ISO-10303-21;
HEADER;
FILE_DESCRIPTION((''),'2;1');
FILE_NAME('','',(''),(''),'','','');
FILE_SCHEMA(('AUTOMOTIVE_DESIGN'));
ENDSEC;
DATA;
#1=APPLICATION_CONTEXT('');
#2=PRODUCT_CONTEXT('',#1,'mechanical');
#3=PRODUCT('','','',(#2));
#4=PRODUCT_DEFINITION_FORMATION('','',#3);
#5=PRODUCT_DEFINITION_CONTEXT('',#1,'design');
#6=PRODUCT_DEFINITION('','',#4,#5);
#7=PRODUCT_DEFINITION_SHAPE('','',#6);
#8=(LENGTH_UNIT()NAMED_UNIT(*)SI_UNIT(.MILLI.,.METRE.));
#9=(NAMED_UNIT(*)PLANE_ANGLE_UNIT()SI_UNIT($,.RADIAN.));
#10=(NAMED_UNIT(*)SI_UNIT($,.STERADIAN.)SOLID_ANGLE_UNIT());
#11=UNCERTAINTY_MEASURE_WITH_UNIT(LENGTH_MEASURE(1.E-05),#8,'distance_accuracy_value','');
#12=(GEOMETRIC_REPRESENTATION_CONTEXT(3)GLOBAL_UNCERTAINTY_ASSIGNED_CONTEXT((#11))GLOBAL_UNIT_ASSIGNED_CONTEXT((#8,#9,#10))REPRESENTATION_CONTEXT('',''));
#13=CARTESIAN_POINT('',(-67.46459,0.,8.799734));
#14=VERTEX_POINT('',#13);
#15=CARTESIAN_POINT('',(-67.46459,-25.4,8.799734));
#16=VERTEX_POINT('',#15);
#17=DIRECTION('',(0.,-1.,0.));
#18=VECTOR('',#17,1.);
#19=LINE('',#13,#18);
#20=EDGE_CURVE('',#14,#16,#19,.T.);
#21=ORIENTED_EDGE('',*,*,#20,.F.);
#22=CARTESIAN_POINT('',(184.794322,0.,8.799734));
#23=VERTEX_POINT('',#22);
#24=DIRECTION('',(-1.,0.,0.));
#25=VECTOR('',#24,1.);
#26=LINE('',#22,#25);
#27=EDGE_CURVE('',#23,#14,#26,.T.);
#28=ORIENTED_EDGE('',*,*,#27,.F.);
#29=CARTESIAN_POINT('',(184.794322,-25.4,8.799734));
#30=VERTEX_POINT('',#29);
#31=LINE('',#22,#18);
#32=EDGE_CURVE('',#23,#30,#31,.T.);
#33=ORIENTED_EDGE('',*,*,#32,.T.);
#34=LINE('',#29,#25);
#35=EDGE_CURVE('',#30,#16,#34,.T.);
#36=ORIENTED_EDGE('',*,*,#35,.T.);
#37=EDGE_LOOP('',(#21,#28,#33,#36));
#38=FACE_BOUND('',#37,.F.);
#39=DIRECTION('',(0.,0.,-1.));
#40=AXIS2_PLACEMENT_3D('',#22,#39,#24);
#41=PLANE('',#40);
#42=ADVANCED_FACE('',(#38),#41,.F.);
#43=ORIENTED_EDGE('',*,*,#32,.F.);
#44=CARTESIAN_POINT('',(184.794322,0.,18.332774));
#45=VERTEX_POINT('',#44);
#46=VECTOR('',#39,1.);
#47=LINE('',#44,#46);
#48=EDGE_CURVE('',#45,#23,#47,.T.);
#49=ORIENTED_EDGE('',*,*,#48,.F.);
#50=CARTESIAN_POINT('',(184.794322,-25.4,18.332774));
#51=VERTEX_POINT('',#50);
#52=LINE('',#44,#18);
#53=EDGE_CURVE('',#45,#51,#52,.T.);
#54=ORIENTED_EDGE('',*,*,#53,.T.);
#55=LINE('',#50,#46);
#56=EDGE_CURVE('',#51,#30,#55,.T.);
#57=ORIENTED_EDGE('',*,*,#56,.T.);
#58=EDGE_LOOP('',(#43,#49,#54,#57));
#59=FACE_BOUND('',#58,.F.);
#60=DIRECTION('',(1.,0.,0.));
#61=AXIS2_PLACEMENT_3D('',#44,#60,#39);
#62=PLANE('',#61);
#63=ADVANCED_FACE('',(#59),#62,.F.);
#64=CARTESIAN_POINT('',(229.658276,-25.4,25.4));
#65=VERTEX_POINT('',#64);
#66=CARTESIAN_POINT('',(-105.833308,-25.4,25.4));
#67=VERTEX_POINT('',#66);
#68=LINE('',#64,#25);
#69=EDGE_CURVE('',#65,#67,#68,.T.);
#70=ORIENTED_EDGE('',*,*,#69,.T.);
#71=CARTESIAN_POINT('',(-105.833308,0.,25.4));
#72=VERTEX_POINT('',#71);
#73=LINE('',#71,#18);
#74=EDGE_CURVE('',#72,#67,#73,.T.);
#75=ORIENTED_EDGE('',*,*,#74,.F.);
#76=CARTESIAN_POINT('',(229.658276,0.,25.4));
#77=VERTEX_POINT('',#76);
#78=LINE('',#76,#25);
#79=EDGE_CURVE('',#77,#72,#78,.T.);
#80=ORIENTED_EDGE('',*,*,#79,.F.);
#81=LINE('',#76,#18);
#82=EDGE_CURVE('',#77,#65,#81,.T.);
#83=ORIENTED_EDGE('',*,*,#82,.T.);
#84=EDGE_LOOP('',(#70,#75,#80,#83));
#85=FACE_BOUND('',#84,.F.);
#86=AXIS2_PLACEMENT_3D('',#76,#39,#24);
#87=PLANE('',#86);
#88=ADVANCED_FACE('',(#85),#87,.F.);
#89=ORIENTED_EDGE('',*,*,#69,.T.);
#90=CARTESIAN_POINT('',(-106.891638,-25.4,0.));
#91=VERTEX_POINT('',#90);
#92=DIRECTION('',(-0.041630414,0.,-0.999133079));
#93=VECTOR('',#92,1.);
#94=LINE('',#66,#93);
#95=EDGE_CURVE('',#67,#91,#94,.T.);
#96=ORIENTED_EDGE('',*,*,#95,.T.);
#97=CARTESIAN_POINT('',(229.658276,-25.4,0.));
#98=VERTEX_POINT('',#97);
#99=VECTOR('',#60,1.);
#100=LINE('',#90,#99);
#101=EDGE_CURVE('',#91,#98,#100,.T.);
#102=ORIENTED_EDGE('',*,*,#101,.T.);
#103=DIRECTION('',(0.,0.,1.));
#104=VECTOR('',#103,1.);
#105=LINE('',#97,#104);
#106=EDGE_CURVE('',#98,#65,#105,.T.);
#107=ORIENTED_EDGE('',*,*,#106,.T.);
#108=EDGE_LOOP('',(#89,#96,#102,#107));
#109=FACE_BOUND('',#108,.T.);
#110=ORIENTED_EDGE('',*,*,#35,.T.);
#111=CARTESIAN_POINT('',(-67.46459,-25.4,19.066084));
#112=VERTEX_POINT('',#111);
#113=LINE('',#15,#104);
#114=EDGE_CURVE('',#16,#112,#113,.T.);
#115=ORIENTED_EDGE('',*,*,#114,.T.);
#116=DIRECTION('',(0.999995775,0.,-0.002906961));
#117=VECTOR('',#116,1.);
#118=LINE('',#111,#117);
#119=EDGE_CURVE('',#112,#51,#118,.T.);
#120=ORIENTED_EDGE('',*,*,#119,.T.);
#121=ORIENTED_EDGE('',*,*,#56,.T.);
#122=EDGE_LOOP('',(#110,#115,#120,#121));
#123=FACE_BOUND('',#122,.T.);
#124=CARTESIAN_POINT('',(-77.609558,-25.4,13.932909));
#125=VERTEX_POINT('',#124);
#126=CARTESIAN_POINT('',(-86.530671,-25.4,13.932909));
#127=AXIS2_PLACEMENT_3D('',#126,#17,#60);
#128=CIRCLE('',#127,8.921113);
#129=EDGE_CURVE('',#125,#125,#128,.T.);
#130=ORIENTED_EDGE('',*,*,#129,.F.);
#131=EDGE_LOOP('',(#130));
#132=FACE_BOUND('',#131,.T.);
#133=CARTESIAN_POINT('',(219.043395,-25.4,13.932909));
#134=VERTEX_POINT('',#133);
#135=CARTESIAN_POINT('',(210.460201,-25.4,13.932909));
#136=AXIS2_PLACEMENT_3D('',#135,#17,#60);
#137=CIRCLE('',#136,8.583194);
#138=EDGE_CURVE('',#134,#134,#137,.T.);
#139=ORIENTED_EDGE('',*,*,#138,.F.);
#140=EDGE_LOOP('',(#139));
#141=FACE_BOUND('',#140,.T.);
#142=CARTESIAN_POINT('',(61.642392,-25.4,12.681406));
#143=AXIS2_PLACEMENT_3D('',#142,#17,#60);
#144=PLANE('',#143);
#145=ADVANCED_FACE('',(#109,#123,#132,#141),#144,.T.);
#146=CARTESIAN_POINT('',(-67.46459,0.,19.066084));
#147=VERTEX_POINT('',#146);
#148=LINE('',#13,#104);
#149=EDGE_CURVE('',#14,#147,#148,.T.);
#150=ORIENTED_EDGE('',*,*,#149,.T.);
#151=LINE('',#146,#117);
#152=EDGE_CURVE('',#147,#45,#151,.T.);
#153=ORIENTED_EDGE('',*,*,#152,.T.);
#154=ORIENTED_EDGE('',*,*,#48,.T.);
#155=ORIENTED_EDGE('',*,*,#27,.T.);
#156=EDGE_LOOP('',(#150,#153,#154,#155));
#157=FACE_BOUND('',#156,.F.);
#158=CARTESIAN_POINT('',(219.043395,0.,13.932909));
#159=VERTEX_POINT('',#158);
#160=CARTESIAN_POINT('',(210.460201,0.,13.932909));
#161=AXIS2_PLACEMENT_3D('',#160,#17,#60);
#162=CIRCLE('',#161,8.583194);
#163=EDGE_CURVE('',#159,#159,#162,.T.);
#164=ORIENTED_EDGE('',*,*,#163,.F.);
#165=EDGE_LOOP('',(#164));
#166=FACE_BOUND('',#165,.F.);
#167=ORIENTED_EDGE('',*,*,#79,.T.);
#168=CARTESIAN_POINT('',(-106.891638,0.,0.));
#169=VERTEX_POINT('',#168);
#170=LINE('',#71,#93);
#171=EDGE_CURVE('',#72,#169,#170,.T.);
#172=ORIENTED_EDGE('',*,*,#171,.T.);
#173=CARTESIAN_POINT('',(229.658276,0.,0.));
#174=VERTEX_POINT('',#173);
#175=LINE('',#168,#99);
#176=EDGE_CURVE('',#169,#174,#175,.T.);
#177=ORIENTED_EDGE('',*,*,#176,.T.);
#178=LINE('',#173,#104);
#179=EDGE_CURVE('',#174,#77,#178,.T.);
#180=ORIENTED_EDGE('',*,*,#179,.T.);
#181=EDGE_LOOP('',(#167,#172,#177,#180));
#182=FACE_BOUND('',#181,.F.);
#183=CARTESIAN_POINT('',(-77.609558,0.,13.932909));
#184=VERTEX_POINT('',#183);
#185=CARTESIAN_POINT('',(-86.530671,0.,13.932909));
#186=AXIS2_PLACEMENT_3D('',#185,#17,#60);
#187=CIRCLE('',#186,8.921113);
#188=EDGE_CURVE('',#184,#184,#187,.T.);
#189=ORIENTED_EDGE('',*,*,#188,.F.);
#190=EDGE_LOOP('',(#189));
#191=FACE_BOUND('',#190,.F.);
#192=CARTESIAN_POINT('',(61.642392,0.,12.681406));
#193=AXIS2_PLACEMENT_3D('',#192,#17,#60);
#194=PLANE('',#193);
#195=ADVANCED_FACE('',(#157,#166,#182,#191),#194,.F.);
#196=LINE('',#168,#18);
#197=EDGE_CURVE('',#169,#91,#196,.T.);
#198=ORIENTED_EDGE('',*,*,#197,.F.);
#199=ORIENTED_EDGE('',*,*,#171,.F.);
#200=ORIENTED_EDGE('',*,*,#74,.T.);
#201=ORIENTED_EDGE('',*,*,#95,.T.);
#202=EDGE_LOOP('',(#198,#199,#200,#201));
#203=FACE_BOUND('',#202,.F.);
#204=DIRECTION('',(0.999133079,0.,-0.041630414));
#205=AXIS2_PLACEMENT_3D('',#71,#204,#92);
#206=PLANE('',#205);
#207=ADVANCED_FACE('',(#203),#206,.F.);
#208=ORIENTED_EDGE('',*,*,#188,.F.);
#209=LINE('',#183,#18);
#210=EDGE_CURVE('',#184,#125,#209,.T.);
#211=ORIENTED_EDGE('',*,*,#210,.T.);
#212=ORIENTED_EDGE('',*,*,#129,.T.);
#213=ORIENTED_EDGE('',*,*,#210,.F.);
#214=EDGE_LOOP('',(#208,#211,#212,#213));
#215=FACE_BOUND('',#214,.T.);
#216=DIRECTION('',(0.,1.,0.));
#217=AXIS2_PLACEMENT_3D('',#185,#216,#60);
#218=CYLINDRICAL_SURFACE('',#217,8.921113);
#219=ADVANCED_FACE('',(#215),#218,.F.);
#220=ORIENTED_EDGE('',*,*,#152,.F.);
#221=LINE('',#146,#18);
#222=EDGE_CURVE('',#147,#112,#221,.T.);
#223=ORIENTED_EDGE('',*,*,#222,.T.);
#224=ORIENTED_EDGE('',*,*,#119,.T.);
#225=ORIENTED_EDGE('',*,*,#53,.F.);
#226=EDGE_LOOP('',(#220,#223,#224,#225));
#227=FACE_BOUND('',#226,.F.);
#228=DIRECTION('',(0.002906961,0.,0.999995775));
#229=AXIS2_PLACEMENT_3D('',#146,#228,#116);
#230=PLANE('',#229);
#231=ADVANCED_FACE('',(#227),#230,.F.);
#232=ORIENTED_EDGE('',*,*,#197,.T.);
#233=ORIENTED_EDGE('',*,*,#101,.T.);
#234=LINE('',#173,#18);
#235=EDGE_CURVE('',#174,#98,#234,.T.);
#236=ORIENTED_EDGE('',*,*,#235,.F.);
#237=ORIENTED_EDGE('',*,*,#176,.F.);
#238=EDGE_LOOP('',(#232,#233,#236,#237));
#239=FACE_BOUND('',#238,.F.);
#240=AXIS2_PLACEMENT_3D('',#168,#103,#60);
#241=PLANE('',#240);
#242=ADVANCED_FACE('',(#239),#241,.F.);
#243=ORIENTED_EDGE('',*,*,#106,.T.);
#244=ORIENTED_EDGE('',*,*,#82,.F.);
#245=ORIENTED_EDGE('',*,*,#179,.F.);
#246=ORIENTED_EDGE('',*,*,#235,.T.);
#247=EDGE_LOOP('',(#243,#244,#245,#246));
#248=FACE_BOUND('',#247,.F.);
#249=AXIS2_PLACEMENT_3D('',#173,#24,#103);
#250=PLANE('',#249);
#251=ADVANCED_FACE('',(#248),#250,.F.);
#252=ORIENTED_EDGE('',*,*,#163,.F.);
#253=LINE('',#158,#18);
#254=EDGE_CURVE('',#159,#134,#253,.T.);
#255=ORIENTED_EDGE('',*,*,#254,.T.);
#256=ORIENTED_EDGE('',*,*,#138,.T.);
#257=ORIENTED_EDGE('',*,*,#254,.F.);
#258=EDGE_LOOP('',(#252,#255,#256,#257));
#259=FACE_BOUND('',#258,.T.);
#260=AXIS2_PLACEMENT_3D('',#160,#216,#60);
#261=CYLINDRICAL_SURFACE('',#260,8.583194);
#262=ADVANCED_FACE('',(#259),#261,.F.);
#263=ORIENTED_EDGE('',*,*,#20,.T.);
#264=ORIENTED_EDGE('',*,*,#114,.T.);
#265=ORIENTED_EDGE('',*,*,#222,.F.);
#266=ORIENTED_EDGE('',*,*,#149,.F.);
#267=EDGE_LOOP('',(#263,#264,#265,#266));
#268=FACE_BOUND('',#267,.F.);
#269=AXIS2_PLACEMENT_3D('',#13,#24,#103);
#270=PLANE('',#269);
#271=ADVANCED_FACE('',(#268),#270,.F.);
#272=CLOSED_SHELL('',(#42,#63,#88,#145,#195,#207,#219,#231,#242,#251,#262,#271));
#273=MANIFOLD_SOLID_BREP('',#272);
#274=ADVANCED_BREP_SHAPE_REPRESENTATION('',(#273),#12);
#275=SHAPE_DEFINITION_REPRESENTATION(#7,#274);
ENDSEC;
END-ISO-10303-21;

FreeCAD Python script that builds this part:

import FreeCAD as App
import Part
import Sketcher
Q = App.Units.Quantity


def add_polygon(sketch, points):
    """Adds a closed chain of lines whose ends are joined by coincident constraints."""
    first, n = sketch.GeometryCount, len(points)
    for a, b in zip(points, points[1:] + points[:1]):
        sketch.addGeometry(Part.LineSegment(App.Vector(*a, 0), App.Vector(*b, 0)), False)
    for i in range(n):
        sketch.addConstraint(Sketcher.Constraint("Coincident", first + i, 2, first + (i + 1) % n, 1))

doc = App.newDocument("Part")
body = doc.addObject("PartDesign::Body", "Body")

sketch1 = body.newObject("Sketcher::SketchObject", "Sketch")
sketch1.AttachmentSupport = (doc.getObject("XZ_Plane"), [""])
sketch1.MapMode = "FlatFace"
add_polygon(sketch1, [(230, 25), (-106, 25), (-107, 0), (230, 0)])
sketch1.addGeometry(Part.Circle(App.Vector(-87, 14, 0), App.Vector(0, 0, 1), 9), False)
add_polygon(sketch1, [(185, 9), (-67, 9), (-67, 19), (185, 18)])
sketch1.addGeometry(Part.Circle(App.Vector(210, 14, 0), App.Vector(0, 0, 1), 9), False)
sketch1.addConstraint(Sketcher.Constraint("Horizontal", 0))
sketch1.addConstraint(Sketcher.Constraint("Horizontal", 2))
sketch1.addConstraint(Sketcher.Constraint("Vertical", 3))
sketch1.addConstraint(Sketcher.Constraint("Horizontal", 5))
sketch1.addConstraint(Sketcher.Constraint("Vertical", 6))
sketch1.addConstraint(Sketcher.Constraint("Vertical", 8))
sketch1.addConstraint(Sketcher.Constraint("PointOnObject", 1, 2, -1))
sketch1.addConstraint(Sketcher.Constraint("Horizontal", 4, 3, 9, 3))
sketch1.addConstraint(Sketcher.Constraint("DistanceY", 3, 1, 3, 2, Q("1 in")))
sketch1.addConstraint(Sketcher.Constraint("Diameter", 9, Q("17.166388 mm")))
sketch1.addConstraint(Sketcher.Constraint("Diameter", 4, Q("17.842226 mm")))
sketch1.addConstraint(Sketcher.Constraint("DistanceY", 6, 1, 6, 2, Q("10.26635 mm")))
sketch1.addConstraint(Sketcher.Constraint("DistanceY", 8, 2, 8, 1, Q("9.53304 mm")))
sketch1.addConstraint(Sketcher.Constraint("DistanceX", -1, 1, 9, 3, Q("210.460201 mm")))
sketch1.addConstraint(Sketcher.Constraint("Distance", 1, Q("25.422039 mm")))
sketch1.addConstraint(Sketcher.Constraint("DistanceX", 0, 2, 0, 1, Q("335.491584 mm")))
sketch1.addConstraint(Sketcher.Constraint("DistanceX", 5, 2, 5, 1, Q("252.258912 mm")))
sketch1.addConstraint(Sketcher.Constraint("DistanceX", 4, 3, -1, 1, Q("86.530671 mm")))
sketch1.addConstraint(Sketcher.Constraint("DistanceY", -1, 1, 4, 3, Q("13.932909 mm")))
sketch1.addConstraint(Sketcher.Constraint("DistanceX", 0, 2, -1, 1, Q("105.833308 mm")))
sketch1.addConstraint(Sketcher.Constraint("DistanceX", 5, 2, -1, 1, Q("67.46459 mm")))
sketch1.addConstraint(Sketcher.Constraint("DistanceY", -1, 1, 5, 2, Q("8.799734 mm")))
pad1 = body.newObject("PartDesign::Pad", "Pad")
pad1.Profile = sketch1
pad1.Length = Q("1 in")

doc.recompute()
